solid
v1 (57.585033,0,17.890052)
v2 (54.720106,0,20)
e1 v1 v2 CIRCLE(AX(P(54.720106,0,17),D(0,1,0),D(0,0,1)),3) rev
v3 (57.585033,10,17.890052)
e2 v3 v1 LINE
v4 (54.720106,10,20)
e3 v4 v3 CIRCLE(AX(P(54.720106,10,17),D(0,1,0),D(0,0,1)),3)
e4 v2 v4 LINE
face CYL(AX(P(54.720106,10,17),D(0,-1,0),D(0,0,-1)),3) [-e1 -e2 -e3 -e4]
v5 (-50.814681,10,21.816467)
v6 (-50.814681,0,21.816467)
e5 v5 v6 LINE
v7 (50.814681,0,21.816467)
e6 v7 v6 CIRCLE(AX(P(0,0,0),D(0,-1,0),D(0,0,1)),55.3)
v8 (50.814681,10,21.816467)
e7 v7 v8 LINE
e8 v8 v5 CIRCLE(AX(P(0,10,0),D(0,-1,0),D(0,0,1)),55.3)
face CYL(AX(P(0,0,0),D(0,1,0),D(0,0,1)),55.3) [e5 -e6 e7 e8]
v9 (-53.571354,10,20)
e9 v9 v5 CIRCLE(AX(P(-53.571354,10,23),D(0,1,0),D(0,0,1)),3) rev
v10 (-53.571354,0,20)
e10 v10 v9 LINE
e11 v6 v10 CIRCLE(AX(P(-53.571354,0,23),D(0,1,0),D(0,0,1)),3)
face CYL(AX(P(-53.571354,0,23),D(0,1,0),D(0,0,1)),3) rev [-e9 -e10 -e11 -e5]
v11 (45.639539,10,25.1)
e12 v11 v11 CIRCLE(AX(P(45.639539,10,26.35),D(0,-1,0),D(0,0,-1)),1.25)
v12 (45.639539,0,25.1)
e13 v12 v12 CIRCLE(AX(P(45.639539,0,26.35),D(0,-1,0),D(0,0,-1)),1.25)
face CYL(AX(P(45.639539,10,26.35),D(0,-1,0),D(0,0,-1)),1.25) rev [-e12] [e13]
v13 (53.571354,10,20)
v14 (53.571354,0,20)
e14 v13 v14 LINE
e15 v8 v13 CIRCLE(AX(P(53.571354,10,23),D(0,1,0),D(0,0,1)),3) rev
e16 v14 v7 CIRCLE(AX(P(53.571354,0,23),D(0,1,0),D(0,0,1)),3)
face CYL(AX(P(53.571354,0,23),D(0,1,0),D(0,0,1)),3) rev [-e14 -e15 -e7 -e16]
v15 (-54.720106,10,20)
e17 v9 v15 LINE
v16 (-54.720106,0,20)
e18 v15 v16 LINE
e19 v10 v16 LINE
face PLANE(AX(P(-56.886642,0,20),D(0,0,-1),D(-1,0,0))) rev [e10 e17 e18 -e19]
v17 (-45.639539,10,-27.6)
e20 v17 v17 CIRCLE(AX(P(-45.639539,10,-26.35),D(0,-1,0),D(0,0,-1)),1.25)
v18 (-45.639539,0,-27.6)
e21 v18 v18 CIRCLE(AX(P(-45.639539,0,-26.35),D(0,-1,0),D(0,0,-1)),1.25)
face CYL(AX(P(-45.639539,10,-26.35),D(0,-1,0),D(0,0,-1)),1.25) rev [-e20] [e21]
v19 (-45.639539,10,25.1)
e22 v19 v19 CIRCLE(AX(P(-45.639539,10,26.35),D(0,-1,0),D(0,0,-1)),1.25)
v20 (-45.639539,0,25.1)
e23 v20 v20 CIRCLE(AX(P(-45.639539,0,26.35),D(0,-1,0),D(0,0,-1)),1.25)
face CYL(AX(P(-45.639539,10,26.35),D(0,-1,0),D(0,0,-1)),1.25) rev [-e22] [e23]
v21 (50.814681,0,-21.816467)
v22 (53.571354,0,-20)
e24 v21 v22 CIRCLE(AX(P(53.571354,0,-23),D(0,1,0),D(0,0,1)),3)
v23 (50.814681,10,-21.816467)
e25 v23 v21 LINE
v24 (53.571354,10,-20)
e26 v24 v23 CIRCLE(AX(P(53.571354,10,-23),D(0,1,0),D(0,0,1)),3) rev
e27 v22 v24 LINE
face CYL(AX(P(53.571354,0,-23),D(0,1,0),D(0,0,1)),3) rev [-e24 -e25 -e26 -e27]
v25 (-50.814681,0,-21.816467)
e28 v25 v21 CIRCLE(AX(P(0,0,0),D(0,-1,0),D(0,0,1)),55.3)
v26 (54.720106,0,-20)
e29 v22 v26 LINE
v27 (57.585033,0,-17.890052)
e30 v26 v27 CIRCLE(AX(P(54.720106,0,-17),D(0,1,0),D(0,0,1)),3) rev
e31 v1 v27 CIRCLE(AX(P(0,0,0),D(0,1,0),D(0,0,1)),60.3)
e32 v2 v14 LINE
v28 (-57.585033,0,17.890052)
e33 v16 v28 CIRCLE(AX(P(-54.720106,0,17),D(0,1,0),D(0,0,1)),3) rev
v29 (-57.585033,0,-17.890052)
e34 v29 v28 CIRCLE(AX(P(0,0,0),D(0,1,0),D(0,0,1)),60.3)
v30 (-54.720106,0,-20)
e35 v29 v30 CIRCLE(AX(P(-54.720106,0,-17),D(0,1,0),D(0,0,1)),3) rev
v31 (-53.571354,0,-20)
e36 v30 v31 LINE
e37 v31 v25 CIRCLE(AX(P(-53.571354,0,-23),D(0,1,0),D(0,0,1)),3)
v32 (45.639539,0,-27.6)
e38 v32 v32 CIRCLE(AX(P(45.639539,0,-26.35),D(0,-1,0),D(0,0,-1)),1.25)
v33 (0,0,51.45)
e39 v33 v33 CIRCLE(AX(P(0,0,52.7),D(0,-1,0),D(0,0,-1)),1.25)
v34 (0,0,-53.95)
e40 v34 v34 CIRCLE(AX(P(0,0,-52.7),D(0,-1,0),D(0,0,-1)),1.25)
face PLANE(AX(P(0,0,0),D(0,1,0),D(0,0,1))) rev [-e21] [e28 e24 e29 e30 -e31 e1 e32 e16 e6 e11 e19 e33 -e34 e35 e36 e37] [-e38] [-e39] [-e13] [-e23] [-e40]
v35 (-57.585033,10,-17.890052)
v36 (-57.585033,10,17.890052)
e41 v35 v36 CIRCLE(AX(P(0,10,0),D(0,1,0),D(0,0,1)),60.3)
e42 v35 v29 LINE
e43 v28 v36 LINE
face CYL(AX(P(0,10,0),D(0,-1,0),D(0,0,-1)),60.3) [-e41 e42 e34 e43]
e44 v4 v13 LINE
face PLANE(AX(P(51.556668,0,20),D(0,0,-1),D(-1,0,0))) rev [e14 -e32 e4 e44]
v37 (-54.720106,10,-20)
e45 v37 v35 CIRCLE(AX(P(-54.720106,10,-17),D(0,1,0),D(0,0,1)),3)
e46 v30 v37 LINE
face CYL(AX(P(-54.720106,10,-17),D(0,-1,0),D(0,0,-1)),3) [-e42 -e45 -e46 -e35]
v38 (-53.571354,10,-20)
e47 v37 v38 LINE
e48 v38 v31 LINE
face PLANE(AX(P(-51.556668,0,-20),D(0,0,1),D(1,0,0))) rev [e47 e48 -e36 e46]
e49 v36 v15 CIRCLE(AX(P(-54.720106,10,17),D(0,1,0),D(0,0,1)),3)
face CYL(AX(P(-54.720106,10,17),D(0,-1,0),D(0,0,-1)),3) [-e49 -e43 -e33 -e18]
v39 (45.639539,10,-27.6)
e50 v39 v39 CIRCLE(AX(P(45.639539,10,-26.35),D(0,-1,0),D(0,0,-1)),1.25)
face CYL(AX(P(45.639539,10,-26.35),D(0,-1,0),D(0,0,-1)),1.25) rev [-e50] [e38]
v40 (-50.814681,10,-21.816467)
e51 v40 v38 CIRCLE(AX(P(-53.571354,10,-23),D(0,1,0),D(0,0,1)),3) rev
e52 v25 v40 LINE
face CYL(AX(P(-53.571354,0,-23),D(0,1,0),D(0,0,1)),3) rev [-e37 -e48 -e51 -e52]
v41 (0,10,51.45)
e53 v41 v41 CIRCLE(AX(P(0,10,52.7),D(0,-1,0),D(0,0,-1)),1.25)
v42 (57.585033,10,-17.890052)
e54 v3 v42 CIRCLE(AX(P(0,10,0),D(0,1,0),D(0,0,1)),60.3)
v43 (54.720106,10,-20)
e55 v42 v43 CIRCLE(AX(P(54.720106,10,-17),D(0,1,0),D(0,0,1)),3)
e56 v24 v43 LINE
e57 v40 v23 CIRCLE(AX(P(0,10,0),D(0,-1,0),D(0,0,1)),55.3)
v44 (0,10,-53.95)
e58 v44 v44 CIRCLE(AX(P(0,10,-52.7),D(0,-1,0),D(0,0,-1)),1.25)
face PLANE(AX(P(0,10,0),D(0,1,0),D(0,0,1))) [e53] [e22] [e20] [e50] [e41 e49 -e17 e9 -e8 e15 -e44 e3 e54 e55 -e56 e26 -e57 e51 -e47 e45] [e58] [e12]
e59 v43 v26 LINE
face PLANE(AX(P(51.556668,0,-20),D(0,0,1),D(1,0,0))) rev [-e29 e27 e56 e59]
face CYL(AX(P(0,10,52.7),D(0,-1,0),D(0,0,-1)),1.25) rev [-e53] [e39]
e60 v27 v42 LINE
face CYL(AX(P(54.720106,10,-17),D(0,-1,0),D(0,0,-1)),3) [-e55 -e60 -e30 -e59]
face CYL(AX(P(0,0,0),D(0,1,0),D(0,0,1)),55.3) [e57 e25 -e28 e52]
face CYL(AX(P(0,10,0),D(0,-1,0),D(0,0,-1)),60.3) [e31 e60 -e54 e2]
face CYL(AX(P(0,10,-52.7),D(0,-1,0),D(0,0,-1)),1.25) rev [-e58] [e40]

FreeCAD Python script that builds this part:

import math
import FreeCAD as App
import Part
import Sketcher
from FreeCAD import Vector
Q = App.Units.Quantity


def edges_at(feature, points):
    """Names of the edges that pass closest to the given points."""
    edges = feature.Shape.Edges
    near = lambda p: min(range(len(edges)), key=lambda i: edges[i].distToShape(Part.Vertex(*p))[0])
    return sorted({f"Edge{near(p) + 1}" for p in points})

doc = App.newDocument("Part")
body = doc.addObject("PartDesign::Body", "Body")

# Sketch on XZ plane
sketch1 = doc.addObject("Sketcher::SketchObject", "Sketch")
body.addObject(sketch1)
sketch1.AttachmentSupport = (doc.XZ_Plane, [""])
sketch1.MapMode = "FlatFace"
sketch1.addGeometry(Part.Circle(Vector(0, 0, 0), Vector(0, 0, 1), 60), False)
sketch1.addConstraint(Sketcher.Constraint("Coincident", 0, 3, -1, 1))
sketch1.addConstraint(Sketcher.Constraint("Diameter", 0, Q("120.6 mm")))
pad1 = doc.addObject("PartDesign::Pad", "Pad")
body.addObject(pad1)
pad1.Profile = sketch1
pad1.Length = 10
pad1.Reversed = True

# Sketch on XZ plane
sketch2 = doc.addObject("Sketcher::SketchObject", "Sketch001")
body.addObject(sketch2)
sketch2.AttachmentSupport = (doc.XZ_Plane, [""])
sketch2.MapMode = "FlatFace"
sketch2.AttachmentOffset = App.Placement(Vector(0, 0, -10), App.Rotation())
sketch2.addGeometry(Part.LineSegment(Vector(-57, -20, 0), Vector(-52, -20, 0)), False)
sketch2.addGeometry(Part.ArcOfCircle(Part.Circle(Vector(0, 0, 0), Vector(0, 0, 1), 55), math.radians(-159), math.radians(-21)), False)
sketch2.addGeometry(Part.LineSegment(Vector(52, -20, 0), Vector(57, -20, 0)), False)
sketch2.addGeometry(Part.ArcOfCircle(Part.Circle(Vector(0, 0, 0), Vector(0, 0, 1), 60), math.radians(-161), math.radians(-19)), False)
sketch2.addGeometry(Part.LineSegment(Vector(-52, 20, 0), Vector(-57, 20, 0)), False)
sketch2.addGeometry(Part.ArcOfCircle(Part.Circle(Vector(0, 0, 0), Vector(0, 0, 1), 60), math.radians(19), math.radians(161)), False)
sketch2.addGeometry(Part.LineSegment(Vector(57, 20, 0), Vector(52, 20, 0)), False)
sketch2.addGeometry(Part.ArcOfCircle(Part.Circle(Vector(0, 0, 0), Vector(0, 0, 1), 55), math.radians(21), math.radians(159)), False)
sketch2.addConstraint(Sketcher.Constraint("Coincident", 0, 2, 1, 1))
sketch2.addConstraint(Sketcher.Constraint("Coincident", 1, 2, 2, 1))
sketch2.addConstraint(Sketcher.Constraint("Coincident", 2, 2, 3, 2))
sketch2.addConstraint(Sketcher.Constraint("Coincident", 3, 1, 0, 1))
sketch2.addConstraint(Sketcher.Constraint("Coincident", 4, 2, 5, 2))
sketch2.addConstraint(Sketcher.Constraint("Coincident", 5, 1, 6, 1))
sketch2.addConstraint(Sketcher.Constraint("Coincident", 6, 2, 7, 1))
sketch2.addConstraint(Sketcher.Constraint("Coincident", 7, 2, 4, 1))
sketch2.addConstraint(Sketcher.Constraint("Horizontal", 0))
sketch2.addConstraint(Sketcher.Constraint("Horizontal", 2))
sketch2.addConstraint(Sketcher.Constraint("Horizontal", 4))
sketch2.addConstraint(Sketcher.Constraint("Horizontal", 6))
sketch2.addConstraint(Sketcher.Constraint("Coincident", 1, 3, -1, 1))
sketch2.addConstraint(Sketcher.Constraint("Coincident", 3, 3, -1, 1))
sketch2.addConstraint(Sketcher.Constraint("Coincident", 5, 3, -1, 1))
sketch2.addConstraint(Sketcher.Constraint("Coincident", 7, 3, -1, 1))
sketch2.addConstraint(Sketcher.Constraint("Equal", 3, 5))
sketch2.addConstraint(Sketcher.Constraint("Equal", 1, 7))
sketch2.addConstraint(Sketcher.Constraint("Horizontal", 0, 2, 1, 2))
sketch2.addConstraint(Sketcher.Constraint("Horizontal", 4, 2, 5, 1))
sketch2.addConstraint(Sketcher.Constraint("Vertical", 3, 1, 4, 2))
sketch2.addConstraint(Sketcher.Constraint("Radius", 1, Q("55.3 mm")))
sketch2.addConstraint(Sketcher.Constraint("Radius", 3, Q("60.3 mm")))
sketch2.addConstraint(Sketcher.Constraint("DistanceY", 0, 2, -1, 1, Q("20 mm")))
pocket1 = doc.addObject("PartDesign::Pocket", "Pocket")
body.addObject(pocket1)
pocket1.Profile = sketch2
pocket1.Type = "ThroughAll"
pocket1.Reversed = True
doc.recompute()

fillet = doc.addObject("PartDesign::Fillet", "Fillet")
body.addObject(fillet)
fillet.Base = (pocket1, edges_at(pocket1, [
    (51.557, 5, -20),
    (-51.557, 5, -20),
    (-56.887, 5, -20),
    (56.887, 5, -20),
    (-51.557, 5, 20),
    (51.557, 5, 20),
    (56.887, 5, 20),
    (-56.887, 5, 20),
]))
fillet.Radius = 3

# Sketch on XZ plane
sketch3 = doc.addObject("Sketcher::SketchObject", "Sketch002")
body.addObject(sketch3)
sketch3.AttachmentSupport = (doc.XZ_Plane, [""])
sketch3.MapMode = "FlatFace"
sketch3.addGeometry(Part.Circle(Vector(0, -52.7, 0), Vector(0, 0, 1), 1.2), False)
sketch3.addGeometry(Part.Circle(Vector(-45.6, -26.4, 0), Vector(0, 0, 1), 1.2), False)
sketch3.addGeometry(Part.Circle(Vector(-45.6, 26.4, 0), Vector(0, 0, 1), 1.2), False)
sketch3.addGeometry(Part.Circle(Vector(0, 52.7, 0), Vector(0, 0, 1), 1.2), False)
sketch3.addGeometry(Part.Circle(Vector(45.6, 26.4, 0), Vector(0, 0, 1), 1.2), False)
sketch3.addGeometry(Part.Circle(Vector(45.6, -26.4, 0), Vector(0, 0, 1), 1.2), False)
sketch3.addConstraint(Sketcher.Constraint("Equal", 0, 1))
sketch3.addConstraint(Sketcher.Constraint("Equal", 1, 2))
sketch3.addConstraint(Sketcher.Constraint("Equal", 2, 3))
sketch3.addConstraint(Sketcher.Constraint("Equal", 3, 4))
sketch3.addConstraint(Sketcher.Constraint("Equal", 4, 5))
sketch3.addConstraint(Sketcher.Constraint("Symmetric", 0, 3, 3, 3, -1, 1))
sketch3.addConstraint(Sketcher.Constraint("Symmetric", 1, 3, 4, 3, -1, 1))
sketch3.addConstraint(Sketcher.Constraint("Symmetric", 2, 3, 5, 3, -1, 1))
sketch3.addConstraint(Sketcher.Constraint("Symmetric", 2, 3, 4, 3, -2))
sketch3.addConstraint(Sketcher.Constraint("PointOnObject", 0, 3, -2))
sketch3.addConstraint(Sketcher.Constraint("Diameter", 0, Q("2.5 mm")))
sketch3.addConstraint(Sketcher.Constraint("DistanceY", 0, 3, -1, 1, Q("52.7 mm")))
sketch3.addConstraint(Sketcher.Constraint("DistanceY", 1, 3, 2, 3, Q("52.7 mm")))
sketch3.addConstraint(Sketcher.Constraint("DistanceX", 1, 3, -1, 1, Q("45.639539 mm")))
pocket2 = doc.addObject("PartDesign::Pocket", "Pocket001")
body.addObject(pocket2)
pocket2.Profile = sketch3
pocket2.Type = "ThroughAll"

doc.recompute()
